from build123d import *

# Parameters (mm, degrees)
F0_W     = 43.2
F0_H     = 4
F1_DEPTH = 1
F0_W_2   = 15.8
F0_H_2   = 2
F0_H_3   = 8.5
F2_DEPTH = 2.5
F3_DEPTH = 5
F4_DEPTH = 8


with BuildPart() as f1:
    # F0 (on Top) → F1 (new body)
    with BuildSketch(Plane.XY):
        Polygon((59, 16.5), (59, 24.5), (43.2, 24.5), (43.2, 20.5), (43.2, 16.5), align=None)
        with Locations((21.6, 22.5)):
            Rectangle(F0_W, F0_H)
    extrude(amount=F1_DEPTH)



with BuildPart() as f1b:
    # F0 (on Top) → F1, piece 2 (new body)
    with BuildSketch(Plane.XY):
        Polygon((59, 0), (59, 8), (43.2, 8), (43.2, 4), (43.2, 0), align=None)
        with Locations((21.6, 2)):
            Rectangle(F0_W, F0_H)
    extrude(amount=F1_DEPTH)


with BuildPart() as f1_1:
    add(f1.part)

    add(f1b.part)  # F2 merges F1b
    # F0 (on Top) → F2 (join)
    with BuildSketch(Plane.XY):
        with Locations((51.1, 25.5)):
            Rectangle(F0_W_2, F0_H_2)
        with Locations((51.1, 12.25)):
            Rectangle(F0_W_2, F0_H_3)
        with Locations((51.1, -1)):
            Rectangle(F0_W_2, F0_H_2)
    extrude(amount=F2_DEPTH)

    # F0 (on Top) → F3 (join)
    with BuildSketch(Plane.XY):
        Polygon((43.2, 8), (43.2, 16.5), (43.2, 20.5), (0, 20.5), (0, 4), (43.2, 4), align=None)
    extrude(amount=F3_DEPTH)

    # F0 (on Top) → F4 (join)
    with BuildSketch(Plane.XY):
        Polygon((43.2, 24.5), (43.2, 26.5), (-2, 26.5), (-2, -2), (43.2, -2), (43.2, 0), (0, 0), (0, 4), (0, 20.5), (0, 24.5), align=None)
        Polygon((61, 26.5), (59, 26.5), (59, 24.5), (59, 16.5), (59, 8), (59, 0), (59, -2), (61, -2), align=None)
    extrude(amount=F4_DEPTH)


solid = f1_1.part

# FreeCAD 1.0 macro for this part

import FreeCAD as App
import Part
import Sketcher
Q = App.Units.Quantity


def add_polygon(sketch, points):
    """Adds a closed chain of lines whose ends are joined by coincident constraints."""
    first, n = sketch.GeometryCount, len(points)
    for a, b in zip(points, points[1:] + points[:1]):
        sketch.addGeometry(Part.LineSegment(App.Vector(*a, 0), App.Vector(*b, 0)), False)
    for i in range(n):
        sketch.addConstraint(Sketcher.Constraint("Coincident", first + i, 2, first + (i + 1) % n, 1))

doc = App.newDocument("Part")
body = doc.addObject("PartDesign::Body", "Body")

sketch1 = body.newObject("Sketcher::SketchObject", "Sketch")
sketch1.AttachmentSupport = (doc.getObject("XY_Plane"), [""])
sketch1.MapMode = "FlatFace"
add_polygon(sketch1, [(59, 16.5), (59, 24.5), (0, 24.5), (0, 20.5), (43.2, 20.5), (43.2, 16.5)])
sketch1.addConstraint([
    Sketcher.Constraint("Vertical", 0),
    Sketcher.Constraint("Horizontal", 1),
    Sketcher.Constraint("Vertical", 2),
    Sketcher.Constraint("Horizontal", 3),
    Sketcher.Constraint("Vertical", 4),
    Sketcher.Constraint("Horizontal", 5),
    Sketcher.Constraint("PointOnObject", 1, 2, -2),
    Sketcher.Constraint("Equal", 2, 4),
    Sketcher.Constraint("DistanceX", 1, 2, 1, 1, Q("59 mm")),
    Sketcher.Constraint("DistanceY", 0, 1, 0, 2, Q("8 mm")),
    Sketcher.Constraint("DistanceX", 3, 1, 3, 2, Q("43.2 mm")),
    Sketcher.Constraint("DistanceY", -1, 1, 0, 2, Q("24.5 mm")),
])
pad1 = body.newObject("PartDesign::Pad", "Pad")
pad1.Profile = sketch1
pad1.Length = 1
body2 = doc.addObject("PartDesign::Body", "Body001")

sketch2 = body2.newObject("Sketcher::SketchObject", "Sketch001")
sketch2.AttachmentSupport = (doc.getObject("XY_Plane001"), [""])
sketch2.MapMode = "FlatFace"
add_polygon(sketch2, [(59, 0), (59, 8), (43.2, 8), (43.2, 4), (0, 4), (0, 0)])
sketch2.addConstraint([
    Sketcher.Constraint("Vertical", 0),
    Sketcher.Constraint("Horizontal", 1),
    Sketcher.Constraint("Vertical", 2),
    Sketcher.Constraint("Horizontal", 3),
    Sketcher.Constraint("Vertical", 4),
    Sketcher.Constraint("Horizontal", 5),
    Sketcher.Constraint("Coincident", 4, 2, -1, 1),
    Sketcher.Constraint("Equal", 2, 4),
    Sketcher.Constraint("DistanceX", 5, 1, 5, 2, Q("59 mm")),
    Sketcher.Constraint("DistanceY", 0, 1, 0, 2, Q("8 mm")),
    Sketcher.Constraint("DistanceX", 1, 2, 1, 1, Q("15.8 mm")),
])
pad2 = body2.newObject("PartDesign::Pad", "Pad001")
pad2.Profile = sketch2
pad2.Length = 1
body.AllowCompound = True
doc.recompute()

boolean = body.newObject("PartDesign::Boolean", "Boolean")
boolean.Type = "Fuse"
boolean.addObjects([body2])

sketch3 = body.newObject("Sketcher::SketchObject", "Sketch002")
sketch3.AttachmentSupport = (doc.getObject("XY_Plane"), [""])
sketch3.MapMode = "FlatFace"
add_polygon(sketch3, [(43.2, 26.5), (43.2, 24.5), (59, 24.5), (59, 26.5)])
add_polygon(sketch3, [(43.2, 16.5), (43.2, 8), (59, 8), (59, 16.5)])
add_polygon(sketch3, [(43.2, 0), (43.2, -2), (59, -2), (59, 0)])
sketch3.addConstraint([
    Sketcher.Constraint("Vertical", 0),
    Sketcher.Constraint("Horizontal", 1),
    Sketcher.Constraint("Vertical", 2),
    Sketcher.Constraint("Horizontal", 3),
    Sketcher.Constraint("Vertical", 4),
    Sketcher.Constraint("Horizontal", 5),
    Sketcher.Constraint("Vertical", 6),
    Sketcher.Constraint("Horizontal", 7),
    Sketcher.Constraint("Vertical", 8),
    Sketcher.Constraint("Horizontal", 9),
    Sketcher.Constraint("Vertical", 10),
    Sketcher.Constraint("Horizontal", 11),
    Sketcher.Constraint("PointOnObject", 10, 2, -1),
    Sketcher.Constraint("Vertical", 3, 2, 4, 2),
    Sketcher.Constraint("Vertical", 2, 2, 5, 2),
    Sketcher.Constraint("Vertical", 7, 2, 8, 2),
    Sketcher.Constraint("Vertical", 6, 2, 9, 2),
    Sketcher.Constraint("Equal", 2, 8),
    Sketcher.Constraint("DistanceY", 0, 2, 0, 1, Q("2 mm")),
    Sketcher.Constraint("DistanceX", 1, 1, 1, 2, Q("15.8 mm")),
    Sketcher.Constraint("DistanceY", 4, 2, 4, 1, Q("8.5 mm")),
    Sketcher.Constraint("DistanceX", -1, 1, 1, 2, Q("59 mm")),
    Sketcher.Constraint("DistanceY", -1, 1, 4, 2, Q("8 mm")),
    Sketcher.Constraint("DistanceY", 6, 2, 1, 2, Q("8 mm")),
])
pad3 = body.newObject("PartDesign::Pad", "Pad002")
pad3.Profile = sketch3
pad3.Length = 2.5

sketch4 = body.newObject("Sketcher::SketchObject", "Sketch003")
sketch4.AttachmentSupport = (doc.getObject("XY_Plane"), [""])
sketch4.MapMode = "FlatFace"
add_polygon(sketch4, [(43.2, 20.5), (0, 20.5), (0, 4), (43.2, 4)])
sketch4.addConstraint([
    Sketcher.Constraint("Horizontal", 0),
    Sketcher.Constraint("Vertical", 1),
    Sketcher.Constraint("Horizontal", 2),
    Sketcher.Constraint("Vertical", 3),
    Sketcher.Constraint("PointOnObject", 0, 2, -2),
    Sketcher.Constraint("DistanceX", 0, 2, 0, 1, Q("43.2 mm")),
    Sketcher.Constraint("DistanceY", 1, 2, 1, 1, Q("16.5 mm")),
    Sketcher.Constraint("DistanceY", -1, 1, 1, 2, Q("4 mm")),
])
pad4 = body.newObject("PartDesign::Pad", "Pad003")
pad4.Profile = sketch4
pad4.Length = 5

sketch5 = body.newObject("Sketcher::SketchObject", "Sketch004")
sketch5.AttachmentSupport = (doc.getObject("XY_Plane"), [""])
sketch5.MapMode = "FlatFace"
add_polygon(sketch5, [(43.2, 24.5), (43.2, 26.5), (-2, 26.5), (-2, -2), (43.2, -2), (43.2, 0), (0, 0), (0, 24.5)])
add_polygon(sketch5, [(61, 26.5), (59, 26.5), (59, -2), (61, -2)])
sketch5.addConstraint([
    Sketcher.Constraint("Vertical", 0),
    Sketcher.Constraint("Horizontal", 1),
    Sketcher.Constraint("Vertical", 2),
    Sketcher.Constraint("Horizontal", 3),
    Sketcher.Constraint("Vertical", 4),
    Sketcher.Constraint("Horizontal", 5),
    Sketcher.Constraint("Vertical", 6),
    Sketcher.Constraint("Horizontal", 7),
    Sketcher.Constraint("Horizontal", 8),
    Sketcher.Constraint("Vertical", 9),
    Sketcher.Constraint("Horizontal", 10),
    Sketcher.Constraint("Vertical", 11),
    Sketcher.Constraint("Coincident", 5, 2, -1, 1),
    Sketcher.Constraint("Horizontal", 1, 2, 8, 2),
    Sketcher.Constraint("Horizontal", 3, 2, 9, 2),
    Sketcher.Constraint("Vertical", 0, 2, 3, 2),
    Sketcher.Constraint("Equal", 10, 0),
    Sketcher.Constraint("Equal", 0, 4),
    Sketcher.Constraint("DistanceX", 8, 2, 8, 1, Q("2 mm")),
    Sketcher.Constraint("DistanceX", 1, 2, 1, 1, Q("45.2 mm")),
    Sketcher.Constraint("DistanceX", 5, 2, 5, 1, Q("43.2 mm")),
    Sketcher.Constraint("DistanceY", 2, 2, 2, 1, Q("28.5 mm")),
    Sketcher.Constraint("DistanceX", -1, 1, 8, 2, Q("59 mm")),
])
pad5 = body.newObject("PartDesign::Pad", "Pad004")
pad5.Profile = sketch5
pad5.Length = 8

doc.recompute()
